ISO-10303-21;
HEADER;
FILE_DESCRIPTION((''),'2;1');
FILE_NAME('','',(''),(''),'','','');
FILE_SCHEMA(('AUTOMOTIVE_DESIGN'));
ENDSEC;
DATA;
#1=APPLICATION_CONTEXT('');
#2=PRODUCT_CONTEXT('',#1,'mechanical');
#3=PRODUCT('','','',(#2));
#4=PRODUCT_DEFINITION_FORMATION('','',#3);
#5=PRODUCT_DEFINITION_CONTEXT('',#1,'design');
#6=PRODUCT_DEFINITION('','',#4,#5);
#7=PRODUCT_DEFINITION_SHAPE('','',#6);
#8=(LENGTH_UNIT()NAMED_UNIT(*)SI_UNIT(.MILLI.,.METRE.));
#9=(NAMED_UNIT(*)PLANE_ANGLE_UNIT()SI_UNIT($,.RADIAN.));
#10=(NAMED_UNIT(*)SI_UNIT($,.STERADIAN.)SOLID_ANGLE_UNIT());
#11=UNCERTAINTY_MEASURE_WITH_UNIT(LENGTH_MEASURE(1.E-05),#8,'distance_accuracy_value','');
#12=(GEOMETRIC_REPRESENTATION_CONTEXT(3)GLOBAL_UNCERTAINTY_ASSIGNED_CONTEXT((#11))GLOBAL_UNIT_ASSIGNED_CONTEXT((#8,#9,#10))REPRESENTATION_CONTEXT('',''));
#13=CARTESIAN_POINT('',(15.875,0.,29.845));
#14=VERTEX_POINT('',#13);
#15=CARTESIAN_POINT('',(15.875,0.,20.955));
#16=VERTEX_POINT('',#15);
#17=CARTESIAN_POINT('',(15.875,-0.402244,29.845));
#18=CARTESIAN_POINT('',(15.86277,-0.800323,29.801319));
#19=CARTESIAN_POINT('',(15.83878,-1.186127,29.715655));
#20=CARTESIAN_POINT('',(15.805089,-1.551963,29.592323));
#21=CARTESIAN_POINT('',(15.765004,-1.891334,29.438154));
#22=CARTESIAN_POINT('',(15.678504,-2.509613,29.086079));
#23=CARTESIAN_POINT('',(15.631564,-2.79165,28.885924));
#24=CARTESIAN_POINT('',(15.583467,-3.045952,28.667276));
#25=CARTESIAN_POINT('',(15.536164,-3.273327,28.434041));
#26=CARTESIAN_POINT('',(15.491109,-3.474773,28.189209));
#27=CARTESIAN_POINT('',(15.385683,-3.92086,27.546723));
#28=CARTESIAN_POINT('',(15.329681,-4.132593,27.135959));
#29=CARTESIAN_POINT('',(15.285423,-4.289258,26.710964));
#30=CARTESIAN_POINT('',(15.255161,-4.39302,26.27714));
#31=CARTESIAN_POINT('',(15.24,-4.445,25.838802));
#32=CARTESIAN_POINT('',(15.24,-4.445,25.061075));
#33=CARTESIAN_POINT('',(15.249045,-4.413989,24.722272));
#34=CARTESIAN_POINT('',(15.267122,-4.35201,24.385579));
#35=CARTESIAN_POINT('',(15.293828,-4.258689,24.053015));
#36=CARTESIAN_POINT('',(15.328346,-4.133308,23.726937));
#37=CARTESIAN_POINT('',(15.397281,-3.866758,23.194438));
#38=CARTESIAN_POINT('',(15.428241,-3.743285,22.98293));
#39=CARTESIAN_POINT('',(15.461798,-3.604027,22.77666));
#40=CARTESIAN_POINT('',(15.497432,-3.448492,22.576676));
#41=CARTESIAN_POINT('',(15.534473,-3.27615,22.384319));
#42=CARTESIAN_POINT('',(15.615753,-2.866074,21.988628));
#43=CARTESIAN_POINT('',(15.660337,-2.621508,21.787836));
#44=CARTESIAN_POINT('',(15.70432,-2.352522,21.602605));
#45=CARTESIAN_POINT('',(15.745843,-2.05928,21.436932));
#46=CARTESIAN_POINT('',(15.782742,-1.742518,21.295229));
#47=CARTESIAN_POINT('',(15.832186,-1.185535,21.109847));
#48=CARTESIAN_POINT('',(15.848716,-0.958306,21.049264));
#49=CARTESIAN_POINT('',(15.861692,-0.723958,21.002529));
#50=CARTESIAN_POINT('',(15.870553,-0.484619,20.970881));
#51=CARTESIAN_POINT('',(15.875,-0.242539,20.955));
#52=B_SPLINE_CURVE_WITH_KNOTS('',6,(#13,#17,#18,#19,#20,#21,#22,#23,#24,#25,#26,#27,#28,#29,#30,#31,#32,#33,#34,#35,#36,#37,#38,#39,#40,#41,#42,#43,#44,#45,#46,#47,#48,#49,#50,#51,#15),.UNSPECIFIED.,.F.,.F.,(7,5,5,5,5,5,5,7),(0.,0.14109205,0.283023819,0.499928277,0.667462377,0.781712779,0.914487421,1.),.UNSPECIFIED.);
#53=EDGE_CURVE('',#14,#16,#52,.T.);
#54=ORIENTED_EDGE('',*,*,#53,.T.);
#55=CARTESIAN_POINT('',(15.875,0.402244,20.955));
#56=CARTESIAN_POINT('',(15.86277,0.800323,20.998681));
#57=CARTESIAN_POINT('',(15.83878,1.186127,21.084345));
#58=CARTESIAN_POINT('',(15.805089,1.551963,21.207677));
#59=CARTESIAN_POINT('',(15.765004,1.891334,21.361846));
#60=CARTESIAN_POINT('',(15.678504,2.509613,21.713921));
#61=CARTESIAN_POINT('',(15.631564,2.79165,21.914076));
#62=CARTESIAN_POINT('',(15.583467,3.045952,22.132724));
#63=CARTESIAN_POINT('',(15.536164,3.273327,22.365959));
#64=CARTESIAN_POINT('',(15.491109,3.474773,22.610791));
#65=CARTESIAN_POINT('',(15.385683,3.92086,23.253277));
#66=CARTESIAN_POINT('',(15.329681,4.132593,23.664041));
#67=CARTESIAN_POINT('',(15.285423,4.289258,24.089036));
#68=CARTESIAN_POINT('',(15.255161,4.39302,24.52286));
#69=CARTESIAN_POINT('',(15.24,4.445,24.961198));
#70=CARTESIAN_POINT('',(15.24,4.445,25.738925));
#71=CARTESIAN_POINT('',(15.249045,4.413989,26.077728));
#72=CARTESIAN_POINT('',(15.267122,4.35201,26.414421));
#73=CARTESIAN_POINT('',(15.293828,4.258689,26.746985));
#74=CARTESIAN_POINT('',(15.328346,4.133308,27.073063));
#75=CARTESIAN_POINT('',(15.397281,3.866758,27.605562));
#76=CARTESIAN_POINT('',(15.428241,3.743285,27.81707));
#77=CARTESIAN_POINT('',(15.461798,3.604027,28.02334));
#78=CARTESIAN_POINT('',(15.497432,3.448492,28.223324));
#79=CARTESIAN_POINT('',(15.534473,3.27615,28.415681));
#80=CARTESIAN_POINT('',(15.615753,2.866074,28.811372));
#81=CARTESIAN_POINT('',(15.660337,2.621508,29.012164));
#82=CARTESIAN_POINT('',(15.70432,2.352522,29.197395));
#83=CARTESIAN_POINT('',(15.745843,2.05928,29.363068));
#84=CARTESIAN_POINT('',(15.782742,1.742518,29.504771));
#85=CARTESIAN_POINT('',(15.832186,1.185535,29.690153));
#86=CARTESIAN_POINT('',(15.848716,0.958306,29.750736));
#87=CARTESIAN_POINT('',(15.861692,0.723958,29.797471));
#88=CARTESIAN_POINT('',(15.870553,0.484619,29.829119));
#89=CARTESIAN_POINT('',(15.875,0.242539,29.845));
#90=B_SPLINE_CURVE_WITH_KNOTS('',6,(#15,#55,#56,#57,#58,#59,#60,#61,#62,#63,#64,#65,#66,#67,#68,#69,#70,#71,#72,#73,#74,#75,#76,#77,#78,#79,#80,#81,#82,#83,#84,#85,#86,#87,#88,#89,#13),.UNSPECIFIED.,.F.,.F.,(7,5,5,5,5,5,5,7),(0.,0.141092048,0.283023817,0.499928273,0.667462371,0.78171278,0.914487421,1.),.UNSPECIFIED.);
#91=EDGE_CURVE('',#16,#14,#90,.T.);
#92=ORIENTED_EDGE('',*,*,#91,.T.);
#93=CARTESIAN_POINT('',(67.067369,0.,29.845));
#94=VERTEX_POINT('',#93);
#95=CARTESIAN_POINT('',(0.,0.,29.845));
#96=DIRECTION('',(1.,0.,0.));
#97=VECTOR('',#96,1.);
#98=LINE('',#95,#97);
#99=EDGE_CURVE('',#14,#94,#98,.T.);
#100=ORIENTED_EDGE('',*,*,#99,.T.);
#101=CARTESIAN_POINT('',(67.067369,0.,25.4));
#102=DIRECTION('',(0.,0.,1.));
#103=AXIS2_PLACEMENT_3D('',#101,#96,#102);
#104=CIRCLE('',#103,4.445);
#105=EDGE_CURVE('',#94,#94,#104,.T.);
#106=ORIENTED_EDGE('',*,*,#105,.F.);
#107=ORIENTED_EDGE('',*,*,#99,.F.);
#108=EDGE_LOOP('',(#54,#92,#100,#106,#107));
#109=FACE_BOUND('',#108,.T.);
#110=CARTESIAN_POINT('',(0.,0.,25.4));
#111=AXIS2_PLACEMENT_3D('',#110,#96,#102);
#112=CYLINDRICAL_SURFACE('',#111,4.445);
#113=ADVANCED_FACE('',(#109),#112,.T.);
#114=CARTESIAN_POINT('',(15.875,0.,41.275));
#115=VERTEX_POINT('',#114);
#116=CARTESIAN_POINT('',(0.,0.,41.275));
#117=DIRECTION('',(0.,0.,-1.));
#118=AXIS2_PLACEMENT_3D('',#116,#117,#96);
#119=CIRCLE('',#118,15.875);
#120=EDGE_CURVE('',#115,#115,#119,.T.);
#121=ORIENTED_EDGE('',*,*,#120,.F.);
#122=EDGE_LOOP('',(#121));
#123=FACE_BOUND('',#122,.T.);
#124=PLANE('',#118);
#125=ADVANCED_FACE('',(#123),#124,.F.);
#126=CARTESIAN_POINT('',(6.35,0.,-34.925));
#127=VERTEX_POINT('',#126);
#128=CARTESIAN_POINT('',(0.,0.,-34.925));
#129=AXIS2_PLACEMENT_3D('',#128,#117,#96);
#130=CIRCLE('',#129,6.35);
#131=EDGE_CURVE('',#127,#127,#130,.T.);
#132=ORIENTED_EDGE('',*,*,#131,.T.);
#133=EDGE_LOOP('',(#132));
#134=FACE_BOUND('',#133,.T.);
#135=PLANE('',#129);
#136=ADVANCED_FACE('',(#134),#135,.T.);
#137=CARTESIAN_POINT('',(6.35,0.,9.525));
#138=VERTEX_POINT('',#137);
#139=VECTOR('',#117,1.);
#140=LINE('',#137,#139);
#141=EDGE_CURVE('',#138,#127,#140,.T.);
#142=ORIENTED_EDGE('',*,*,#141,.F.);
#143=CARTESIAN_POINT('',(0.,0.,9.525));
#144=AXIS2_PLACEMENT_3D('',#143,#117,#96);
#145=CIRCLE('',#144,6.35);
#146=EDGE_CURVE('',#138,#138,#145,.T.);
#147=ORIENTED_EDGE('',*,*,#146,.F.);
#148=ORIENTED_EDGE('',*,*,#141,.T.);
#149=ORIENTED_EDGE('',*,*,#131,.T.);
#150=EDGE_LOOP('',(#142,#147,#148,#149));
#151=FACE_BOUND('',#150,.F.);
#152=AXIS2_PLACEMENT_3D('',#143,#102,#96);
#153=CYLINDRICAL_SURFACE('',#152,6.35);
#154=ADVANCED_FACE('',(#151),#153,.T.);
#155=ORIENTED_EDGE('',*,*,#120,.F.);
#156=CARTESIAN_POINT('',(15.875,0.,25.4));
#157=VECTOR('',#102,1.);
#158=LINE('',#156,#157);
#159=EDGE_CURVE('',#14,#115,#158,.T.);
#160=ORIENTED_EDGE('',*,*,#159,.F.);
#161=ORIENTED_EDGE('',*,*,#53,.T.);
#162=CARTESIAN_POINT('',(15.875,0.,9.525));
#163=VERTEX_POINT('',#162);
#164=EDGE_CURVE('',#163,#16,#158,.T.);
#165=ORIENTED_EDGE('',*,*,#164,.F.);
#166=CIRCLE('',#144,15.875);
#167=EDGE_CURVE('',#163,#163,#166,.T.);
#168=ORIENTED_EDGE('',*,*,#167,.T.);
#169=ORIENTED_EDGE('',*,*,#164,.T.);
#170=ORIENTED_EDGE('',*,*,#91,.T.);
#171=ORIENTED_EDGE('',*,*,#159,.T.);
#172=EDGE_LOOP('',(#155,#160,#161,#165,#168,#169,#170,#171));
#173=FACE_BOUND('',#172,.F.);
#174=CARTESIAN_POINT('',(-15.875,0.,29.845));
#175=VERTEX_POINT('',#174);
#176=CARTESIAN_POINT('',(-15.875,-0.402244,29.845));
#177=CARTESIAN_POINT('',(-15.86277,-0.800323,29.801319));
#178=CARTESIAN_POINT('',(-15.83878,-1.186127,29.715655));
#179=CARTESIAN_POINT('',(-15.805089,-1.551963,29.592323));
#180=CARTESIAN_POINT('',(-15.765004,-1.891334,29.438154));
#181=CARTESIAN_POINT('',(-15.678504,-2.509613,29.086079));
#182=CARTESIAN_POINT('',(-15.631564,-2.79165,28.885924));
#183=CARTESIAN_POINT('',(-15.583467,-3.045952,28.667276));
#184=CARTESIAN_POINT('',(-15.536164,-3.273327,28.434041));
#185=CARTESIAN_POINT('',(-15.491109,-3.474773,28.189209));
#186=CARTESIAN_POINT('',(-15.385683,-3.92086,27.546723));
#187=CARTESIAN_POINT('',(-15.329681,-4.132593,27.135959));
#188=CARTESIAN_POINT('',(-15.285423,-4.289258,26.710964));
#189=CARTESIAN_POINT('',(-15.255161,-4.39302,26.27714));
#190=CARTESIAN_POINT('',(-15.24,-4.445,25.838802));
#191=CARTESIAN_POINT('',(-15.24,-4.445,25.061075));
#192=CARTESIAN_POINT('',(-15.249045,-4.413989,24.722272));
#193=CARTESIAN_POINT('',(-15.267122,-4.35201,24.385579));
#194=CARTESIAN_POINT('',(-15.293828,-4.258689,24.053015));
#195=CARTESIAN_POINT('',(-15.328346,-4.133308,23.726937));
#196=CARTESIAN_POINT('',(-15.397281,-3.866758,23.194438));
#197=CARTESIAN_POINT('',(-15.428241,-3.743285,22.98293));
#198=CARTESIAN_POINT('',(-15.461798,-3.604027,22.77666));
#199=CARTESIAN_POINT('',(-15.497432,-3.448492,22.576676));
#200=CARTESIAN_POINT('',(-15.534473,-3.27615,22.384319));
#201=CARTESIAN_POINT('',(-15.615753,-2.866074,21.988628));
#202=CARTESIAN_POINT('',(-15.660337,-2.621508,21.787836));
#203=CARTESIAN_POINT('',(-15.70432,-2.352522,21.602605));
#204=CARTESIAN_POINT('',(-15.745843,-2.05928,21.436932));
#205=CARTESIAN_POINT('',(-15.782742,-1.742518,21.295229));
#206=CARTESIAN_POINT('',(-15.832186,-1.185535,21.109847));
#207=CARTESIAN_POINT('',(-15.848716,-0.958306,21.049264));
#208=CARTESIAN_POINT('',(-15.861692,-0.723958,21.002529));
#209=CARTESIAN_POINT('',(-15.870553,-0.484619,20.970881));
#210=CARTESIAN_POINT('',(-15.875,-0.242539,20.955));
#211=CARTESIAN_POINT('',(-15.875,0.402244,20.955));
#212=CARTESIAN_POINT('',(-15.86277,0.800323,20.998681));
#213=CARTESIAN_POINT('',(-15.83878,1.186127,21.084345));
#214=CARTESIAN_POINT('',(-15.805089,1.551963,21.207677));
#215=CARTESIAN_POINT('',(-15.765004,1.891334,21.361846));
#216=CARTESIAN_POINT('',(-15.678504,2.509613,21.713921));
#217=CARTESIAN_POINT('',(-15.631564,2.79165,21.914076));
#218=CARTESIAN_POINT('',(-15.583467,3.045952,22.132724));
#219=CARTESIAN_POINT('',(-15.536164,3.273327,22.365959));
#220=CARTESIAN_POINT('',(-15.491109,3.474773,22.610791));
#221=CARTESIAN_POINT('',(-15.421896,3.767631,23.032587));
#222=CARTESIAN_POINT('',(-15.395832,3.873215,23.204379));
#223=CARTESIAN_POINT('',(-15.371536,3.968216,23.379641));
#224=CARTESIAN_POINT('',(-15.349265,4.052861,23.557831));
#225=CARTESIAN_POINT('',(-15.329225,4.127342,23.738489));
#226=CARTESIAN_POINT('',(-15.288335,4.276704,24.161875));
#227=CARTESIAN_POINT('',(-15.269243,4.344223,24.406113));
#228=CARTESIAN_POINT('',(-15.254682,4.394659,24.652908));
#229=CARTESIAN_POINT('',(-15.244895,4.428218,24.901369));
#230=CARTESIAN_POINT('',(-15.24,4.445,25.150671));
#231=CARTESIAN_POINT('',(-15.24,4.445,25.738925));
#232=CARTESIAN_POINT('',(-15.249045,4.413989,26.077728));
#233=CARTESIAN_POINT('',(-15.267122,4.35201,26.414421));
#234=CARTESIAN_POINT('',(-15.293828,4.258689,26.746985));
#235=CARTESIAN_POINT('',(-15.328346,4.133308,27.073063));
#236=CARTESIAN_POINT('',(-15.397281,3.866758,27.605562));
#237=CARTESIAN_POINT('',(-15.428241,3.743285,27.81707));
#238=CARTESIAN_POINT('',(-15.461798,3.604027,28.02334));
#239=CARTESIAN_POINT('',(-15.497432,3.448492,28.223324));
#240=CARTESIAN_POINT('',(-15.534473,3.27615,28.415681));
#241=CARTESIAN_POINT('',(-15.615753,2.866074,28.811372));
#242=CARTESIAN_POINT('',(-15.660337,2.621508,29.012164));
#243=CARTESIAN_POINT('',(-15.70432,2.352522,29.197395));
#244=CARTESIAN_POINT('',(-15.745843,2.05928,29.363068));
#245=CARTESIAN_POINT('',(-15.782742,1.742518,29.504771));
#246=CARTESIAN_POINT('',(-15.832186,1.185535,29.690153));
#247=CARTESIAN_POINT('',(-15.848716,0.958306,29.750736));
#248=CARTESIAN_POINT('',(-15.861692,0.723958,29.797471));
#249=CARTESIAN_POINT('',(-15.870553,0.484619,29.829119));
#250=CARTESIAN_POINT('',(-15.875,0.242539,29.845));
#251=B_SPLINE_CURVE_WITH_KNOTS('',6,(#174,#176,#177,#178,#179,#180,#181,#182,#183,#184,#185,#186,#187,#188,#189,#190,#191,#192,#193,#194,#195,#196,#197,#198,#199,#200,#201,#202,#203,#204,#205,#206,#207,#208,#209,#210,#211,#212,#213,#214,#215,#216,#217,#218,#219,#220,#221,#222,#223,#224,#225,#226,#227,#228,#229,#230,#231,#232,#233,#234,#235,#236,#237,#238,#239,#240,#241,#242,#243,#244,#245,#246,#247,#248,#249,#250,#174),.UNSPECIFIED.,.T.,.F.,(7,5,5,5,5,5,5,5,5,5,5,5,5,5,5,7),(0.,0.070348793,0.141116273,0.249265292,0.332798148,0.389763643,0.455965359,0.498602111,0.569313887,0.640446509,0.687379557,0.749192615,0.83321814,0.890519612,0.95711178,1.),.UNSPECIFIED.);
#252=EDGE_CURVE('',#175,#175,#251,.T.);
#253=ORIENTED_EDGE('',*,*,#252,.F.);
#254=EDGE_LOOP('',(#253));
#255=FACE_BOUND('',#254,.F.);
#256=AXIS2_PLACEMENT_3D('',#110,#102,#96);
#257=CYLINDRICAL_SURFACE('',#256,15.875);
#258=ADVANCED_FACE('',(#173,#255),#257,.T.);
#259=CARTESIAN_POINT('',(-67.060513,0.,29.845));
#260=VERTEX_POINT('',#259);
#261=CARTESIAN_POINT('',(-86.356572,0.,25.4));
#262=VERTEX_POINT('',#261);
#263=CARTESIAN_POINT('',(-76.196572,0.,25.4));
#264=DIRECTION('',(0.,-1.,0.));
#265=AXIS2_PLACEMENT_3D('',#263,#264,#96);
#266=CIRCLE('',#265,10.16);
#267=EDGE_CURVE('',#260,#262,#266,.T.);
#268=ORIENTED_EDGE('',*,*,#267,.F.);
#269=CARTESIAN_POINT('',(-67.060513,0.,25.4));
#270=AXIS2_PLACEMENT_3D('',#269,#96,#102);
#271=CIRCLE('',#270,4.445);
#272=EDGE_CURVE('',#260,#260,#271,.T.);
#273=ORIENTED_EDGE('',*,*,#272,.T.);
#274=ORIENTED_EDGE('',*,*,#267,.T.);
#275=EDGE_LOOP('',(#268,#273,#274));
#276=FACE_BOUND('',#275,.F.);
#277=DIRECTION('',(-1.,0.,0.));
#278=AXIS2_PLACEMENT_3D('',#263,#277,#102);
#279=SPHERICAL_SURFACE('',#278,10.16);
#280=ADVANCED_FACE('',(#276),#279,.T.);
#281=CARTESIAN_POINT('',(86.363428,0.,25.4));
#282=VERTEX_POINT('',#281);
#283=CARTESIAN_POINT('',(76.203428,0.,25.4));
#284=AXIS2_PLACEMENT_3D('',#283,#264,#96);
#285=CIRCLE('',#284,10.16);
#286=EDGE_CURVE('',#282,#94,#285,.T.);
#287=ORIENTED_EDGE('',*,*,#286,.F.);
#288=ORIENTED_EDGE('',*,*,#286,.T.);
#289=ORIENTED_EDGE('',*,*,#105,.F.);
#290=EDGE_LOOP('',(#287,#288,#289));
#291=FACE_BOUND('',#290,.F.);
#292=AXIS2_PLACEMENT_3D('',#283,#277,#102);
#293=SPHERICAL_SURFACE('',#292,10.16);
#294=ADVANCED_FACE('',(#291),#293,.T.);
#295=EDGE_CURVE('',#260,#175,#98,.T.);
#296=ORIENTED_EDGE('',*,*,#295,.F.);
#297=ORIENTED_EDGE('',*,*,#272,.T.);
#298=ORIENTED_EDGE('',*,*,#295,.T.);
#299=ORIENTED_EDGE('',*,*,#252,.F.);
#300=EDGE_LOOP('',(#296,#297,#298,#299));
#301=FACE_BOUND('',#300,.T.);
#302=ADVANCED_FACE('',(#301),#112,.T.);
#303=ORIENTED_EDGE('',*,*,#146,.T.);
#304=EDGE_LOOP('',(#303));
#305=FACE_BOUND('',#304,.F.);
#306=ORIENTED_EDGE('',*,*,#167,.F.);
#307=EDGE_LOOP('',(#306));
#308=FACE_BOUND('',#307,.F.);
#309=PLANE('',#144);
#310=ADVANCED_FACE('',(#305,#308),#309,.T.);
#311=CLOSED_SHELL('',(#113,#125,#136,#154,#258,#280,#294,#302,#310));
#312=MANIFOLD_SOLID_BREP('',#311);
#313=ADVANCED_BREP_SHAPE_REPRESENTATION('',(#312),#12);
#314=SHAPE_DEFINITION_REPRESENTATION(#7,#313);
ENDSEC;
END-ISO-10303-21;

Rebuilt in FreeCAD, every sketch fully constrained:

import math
import FreeCAD as App
import Part
import Sketcher

V = App.Vector
Q = App.Units.Quantity

doc = App.newDocument("Part")
body = doc.addObject("PartDesign::Body", "Body")
body.AllowCompound = True

# Sketch on XZ plane
sketch1 = body.newObject("Sketcher::SketchObject", "Sketch")
sketch1.AttachmentSupport = (doc.getObject("XZ_Plane"), [""])
sketch1.MapMode = "FlatFace"
sketch1.addGeometry(Part.LineSegment(V(-86.356572, 25.4, 0), V(-66.036572, 25.4, 0)), False)
sketch1.addGeometry(Part.ArcOfCircle(Part.Circle(V(-76.196572, 25.4, 0), V(0, 0, 1), 10.16), math.radians(0), math.radians(180)), False)
sketch1.addGeometry(Part.LineSegment(V(66.043428, 25.4, 0), V(86.363428, 25.4, 0)), False)
sketch1.addGeometry(Part.ArcOfCircle(Part.Circle(V(76.203428, 25.4, 0), V(0, 0, 1), 10.16), math.radians(0), math.radians(180)), False)
sketch1.addGeometry(Part.LineSegment(V(-86.356572, 25.4, 0), V(86.363428, 25.4, 0)), True)  # axis
sketch1.addConstraint(Sketcher.Constraint("Coincident", 0, 1, 1, 2))
sketch1.addConstraint(Sketcher.Constraint("Coincident", 1, 1, 0, 2))
sketch1.addConstraint(Sketcher.Constraint("Coincident", 2, 1, 3, 2))
sketch1.addConstraint(Sketcher.Constraint("Coincident", 3, 1, 2, 2))
sketch1.addConstraint(Sketcher.Constraint("Horizontal", 0))
sketch1.addConstraint(Sketcher.Constraint("Horizontal", 2))
sketch1.addConstraint(Sketcher.Constraint("Horizontal", 4))
sketch1.addConstraint(Sketcher.Constraint("Coincident", 4, 1, 0, 1))
sketch1.addConstraint(Sketcher.Constraint("Coincident", 4, 2, 3, 1))
sketch1.addConstraint(Sketcher.Constraint("Equal", 1, 3))
sketch1.addConstraint(Sketcher.Constraint("Horizontal", 1, 3, 3, 3))
sketch1.addConstraint(Sketcher.Constraint("Horizontal", 3, 3, 0, 1))
sketch1.addConstraint(Sketcher.Constraint("Radius", 1, Q("0.4 in")))
sketch1.addConstraint(Sketcher.Constraint("DistanceX", 4, 1, 4, 2, Q("6.8 in")))
sketch1.addConstraint(Sketcher.Constraint("DistanceY", -1, 1, 1, 3, Q("1 in")))
sketch1.addConstraint(Sketcher.Constraint("DistanceX", -1, 1, 3, 3, 76.203428))
revolution = body.newObject("PartDesign::Revolution", "Revolution")
revolution.Profile = sketch1
revolution.ReferenceAxis = (sketch1, ["Axis0"])
revolution.Angle = 360

# Sketch on XZ plane
sketch2 = body.newObject("Sketcher::SketchObject", "Sketch001")
sketch2.AttachmentSupport = (doc.getObject("XZ_Plane"), [""])
sketch2.MapMode = "FlatFace"
sketch2.addGeometry(Part.LineSegment(V(-76.2, 29.845, 0), V(-76.2, 25.4, 0)), False)
sketch2.addGeometry(Part.LineSegment(V(-76.2, 25.4, 0), V(76.2, 25.4, 0)), False)
sketch2.addGeometry(Part.LineSegment(V(76.2, 25.4, 0), V(76.2, 29.845, 0)), False)
sketch2.addGeometry(Part.LineSegment(V(76.2, 29.845, 0), V(-76.2, 29.845, 0)), False)
sketch2.addGeometry(Part.LineSegment(V(-76.2, 25.4, 0), V(76.2, 25.4, 0)), True)  # axis
sketch2.addConstraint(Sketcher.Constraint("Coincident", 0, 2, 1, 1))
sketch2.addConstraint(Sketcher.Constraint("Coincident", 1, 2, 2, 1))
sketch2.addConstraint(Sketcher.Constraint("Coincident", 2, 2, 3, 1))
sketch2.addConstraint(Sketcher.Constraint("Coincident", 3, 2, 0, 1))
sketch2.addConstraint(Sketcher.Constraint("Vertical", 0))
sketch2.addConstraint(Sketcher.Constraint("Horizontal", 1))
sketch2.addConstraint(Sketcher.Constraint("Vertical", 2))
sketch2.addConstraint(Sketcher.Constraint("Horizontal", 3))
sketch2.addConstraint(Sketcher.Constraint("Horizontal", 4))
sketch2.addConstraint(Sketcher.Constraint("Coincident", 4, 1, 0, 2))
sketch2.addConstraint(Sketcher.Constraint("Vertical", 2, 2, 4, 2))
sketch2.addConstraint(Sketcher.Constraint("DistanceX", 1, 1, 1, 2, Q("6 in")))
sketch2.addConstraint(Sketcher.Constraint("DistanceX", 0, 2, -1, 1, Q("3 in")))
sketch2.addConstraint(Sketcher.Constraint("DistanceY", -1, 1, 0, 2, Q("1 in")))
sketch2.addConstraint(Sketcher.Constraint("DistanceY", 0, 2, 0, 1, Q("0.175 in")))
revolution2 = body.newObject("PartDesign::Revolution", "Revolution001")
revolution2.Profile = sketch2
revolution2.ReferenceAxis = (sketch2, ["Axis0"])
revolution2.Angle = 360

# Sketch on XZ plane
sketch3 = body.newObject("Sketcher::SketchObject", "Sketch002")
sketch3.AttachmentSupport = (doc.getObject("XZ_Plane"), [""])
sketch3.MapMode = "FlatFace"
sketch3.addGeometry(Part.LineSegment(V(0, 41.275, 0), V(0, 9.525, 0)), False)
sketch3.addGeometry(Part.LineSegment(V(0, 9.525, 0), V(15.875, 9.525, 0)), False)
sketch3.addGeometry(Part.LineSegment(V(15.875, 9.525, 0), V(15.875, 41.275, 0)), False)
sketch3.addGeometry(Part.LineSegment(V(15.875, 41.275, 0), V(0, 41.275, 0)), False)
sketch3.addConstraint(Sketcher.Constraint("Coincident", 0, 2, 1, 1))
sketch3.addConstraint(Sketcher.Constraint("Coincident", 1, 2, 2, 1))
sketch3.addConstraint(Sketcher.Constraint("Coincident", 2, 2, 3, 1))
sketch3.addConstraint(Sketcher.Constraint("Coincident", 3, 2, 0, 1))
sketch3.addConstraint(Sketcher.Constraint("Vertical", 0))
sketch3.addConstraint(Sketcher.Constraint("Horizontal", 1))
sketch3.addConstraint(Sketcher.Constraint("Vertical", 2))
sketch3.addConstraint(Sketcher.Constraint("Horizontal", 3))
sketch3.addConstraint(Sketcher.Constraint("PointOnObject", 0, 2, -2))
sketch3.addConstraint(Sketcher.Constraint("DistanceY", 0, 2, 0, 1, Q("1.25 in")))
sketch3.addConstraint(Sketcher.Constraint("DistanceX", 1, 1, 1, 2, Q("0.625 in")))
sketch3.addConstraint(Sketcher.Constraint("DistanceY", -1, 1, 0, 2, Q("0.375 in")))
revolution3 = body.newObject("PartDesign::Revolution", "Revolution002")
revolution3.Profile = sketch3
revolution3.ReferenceAxis = (sketch3, ["V_Axis"])
revolution3.Angle = 360

# Sketch on XY plane
sketch4 = body.newObject("Sketcher::SketchObject", "Sketch003")
sketch4.AttachmentSupport = (doc.getObject("XY_Plane"), [""])
sketch4.MapMode = "FlatFace"
sketch4.AttachmentOffset = App.Placement(V(0, 0, 0.375 * 25.4), App.Rotation())
sketch4.addGeometry(Part.Circle(V(0, 0, 0), V(0, 0, 1), 6.35), False)
sketch4.addConstraint(Sketcher.Constraint("Coincident", 0, 3, -1, 1))
sketch4.addConstraint(Sketcher.Constraint("Diameter", 0, Q("0.5 in")))
pad1 = body.newObject("PartDesign::Pad", "Pad")
pad1.Profile = sketch4
pad1.Length = Q("1.75 in")
pad1.Reversed = True

doc.recompute()
